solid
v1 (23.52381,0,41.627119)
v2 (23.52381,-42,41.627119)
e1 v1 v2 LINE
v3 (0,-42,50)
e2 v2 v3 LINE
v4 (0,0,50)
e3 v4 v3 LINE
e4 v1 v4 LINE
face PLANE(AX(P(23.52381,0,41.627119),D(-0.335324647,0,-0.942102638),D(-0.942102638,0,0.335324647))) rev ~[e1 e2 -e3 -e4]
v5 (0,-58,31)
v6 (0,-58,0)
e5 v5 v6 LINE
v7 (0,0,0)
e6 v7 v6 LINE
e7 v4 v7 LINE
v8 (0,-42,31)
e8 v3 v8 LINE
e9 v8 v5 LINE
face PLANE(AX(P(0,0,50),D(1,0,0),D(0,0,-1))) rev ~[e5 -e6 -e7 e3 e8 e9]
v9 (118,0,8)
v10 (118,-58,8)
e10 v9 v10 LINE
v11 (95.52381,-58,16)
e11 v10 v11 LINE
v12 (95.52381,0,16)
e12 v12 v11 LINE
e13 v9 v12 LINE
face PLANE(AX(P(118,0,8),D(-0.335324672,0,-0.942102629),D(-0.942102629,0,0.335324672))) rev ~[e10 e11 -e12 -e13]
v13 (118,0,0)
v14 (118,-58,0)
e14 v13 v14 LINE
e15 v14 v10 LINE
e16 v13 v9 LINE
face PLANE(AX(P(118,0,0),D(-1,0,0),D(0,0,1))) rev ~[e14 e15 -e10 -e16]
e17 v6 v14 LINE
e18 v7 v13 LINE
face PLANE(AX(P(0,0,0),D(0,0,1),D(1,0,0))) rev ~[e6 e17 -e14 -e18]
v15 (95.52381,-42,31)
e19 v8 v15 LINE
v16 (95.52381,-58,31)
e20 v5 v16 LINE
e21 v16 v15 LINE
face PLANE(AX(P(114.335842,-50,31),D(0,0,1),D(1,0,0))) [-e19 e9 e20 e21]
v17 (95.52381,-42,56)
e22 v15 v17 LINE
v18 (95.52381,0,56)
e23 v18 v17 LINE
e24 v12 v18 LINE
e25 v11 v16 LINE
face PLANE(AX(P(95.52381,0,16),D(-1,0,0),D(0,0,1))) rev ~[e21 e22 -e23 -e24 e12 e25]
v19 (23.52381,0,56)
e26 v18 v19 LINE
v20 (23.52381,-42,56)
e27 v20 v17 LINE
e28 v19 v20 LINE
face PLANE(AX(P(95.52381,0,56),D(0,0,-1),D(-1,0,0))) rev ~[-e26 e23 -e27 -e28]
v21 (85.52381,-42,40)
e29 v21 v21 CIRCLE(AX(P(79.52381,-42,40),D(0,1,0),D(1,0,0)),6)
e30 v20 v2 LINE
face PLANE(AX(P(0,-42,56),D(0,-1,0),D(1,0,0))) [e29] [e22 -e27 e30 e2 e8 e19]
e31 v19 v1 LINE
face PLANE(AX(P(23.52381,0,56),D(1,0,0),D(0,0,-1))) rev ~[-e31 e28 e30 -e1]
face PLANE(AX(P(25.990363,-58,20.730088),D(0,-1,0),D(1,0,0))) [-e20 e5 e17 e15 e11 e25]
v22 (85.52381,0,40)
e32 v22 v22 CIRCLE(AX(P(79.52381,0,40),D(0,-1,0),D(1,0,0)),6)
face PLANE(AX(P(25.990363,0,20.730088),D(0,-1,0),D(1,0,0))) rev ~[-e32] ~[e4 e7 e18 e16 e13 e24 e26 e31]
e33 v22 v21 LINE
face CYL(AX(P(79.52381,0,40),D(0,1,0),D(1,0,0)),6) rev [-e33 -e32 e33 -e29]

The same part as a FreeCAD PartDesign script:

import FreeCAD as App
import Part
import Sketcher

V = App.Vector


def add_polygon(sketch, points):
    """Adds a closed chain of lines whose ends are joined by coincident constraints."""
    first, n = sketch.GeometryCount, len(points)
    for a, b in zip(points, points[1:] + points[:1]):
        sketch.addGeometry(Part.LineSegment(App.Vector(*a, 0), App.Vector(*b, 0)), False)
    for i in range(n):
        sketch.addConstraint(Sketcher.Constraint("Coincident", first + i, 2, first + (i + 1) % n, 1))

doc = App.newDocument("Part")
params = doc.addObject("Spreadsheet::Sheet", "Params")
for row, (alias, value) in enumerate([
    ("sketch1_diameter", "12 mm"),
    ("sketch1_width", "118 mm"),
    ("sketch1_width2", "72 mm"),
    ("sketch1_height", "50 mm"),
    ("sketch1_height2", "8 mm"),
    ("pad1_length", "58 mm"),
    ("sketch2_height", "16 mm"),
    ("pocket1_length", "25 mm"),
], start=1):
    params.set(f"A{row}", alias)
    params.set(f"B{row}", "=" + value)
    params.setAlias(f"B{row}", alias)

body = doc.addObject("PartDesign::Body", "Body")

sketch1 = doc.addObject("Sketcher::SketchObject", "Sketch")
body.addObject(sketch1)
sketch1.AttachmentSupport = (doc.XZ_Plane, [""])
sketch1.MapMode = "FlatFace"
add_polygon(sketch1, [(0, 50), (0, 0), (118, 0), (118, 8), (95.52381, 16), (95.52381, 56), (23.52381, 56), (23.52381, 41.627119)])
sketch1.addGeometry(Part.Circle(V(79.52381, 40, 0), V(0, 0, 1), 6), False)
sketch1.addConstraint(Sketcher.Constraint("Vertical", 0))
sketch1.addConstraint(Sketcher.Constraint("Horizontal", 1))
sketch1.addConstraint(Sketcher.Constraint("Vertical", 2))
sketch1.addConstraint(Sketcher.Constraint("Vertical", 4))
sketch1.addConstraint(Sketcher.Constraint("Horizontal", 5))
sketch1.addConstraint(Sketcher.Constraint("Vertical", 6))
sketch1.addConstraint(Sketcher.Constraint("Coincident", 0, 2, -1, 1))
sketch1.addConstraint(Sketcher.Constraint("Parallel", 3, 7))
sketch1.addConstraint(Sketcher.Constraint("Diameter", 8, 12.0))
sketch1.addConstraint(Sketcher.Constraint("DistanceX", 1, 1, 1, 2, 118.0))
sketch1.addConstraint(Sketcher.Constraint("DistanceX", 5, 2, 5, 1, 72.0))
sketch1.addConstraint(Sketcher.Constraint("DistanceY", 0, 2, 0, 1, 50.0))
sketch1.addConstraint(Sketcher.Constraint("DistanceY", 2, 1, 2, 2, 8.0))
sketch1.addConstraint(Sketcher.Constraint("DistanceY", 4, 1, 4, 2, 40.0))
sketch1.addConstraint(Sketcher.Constraint("DistanceY", -1, 1, 8, 3, 40.0))
sketch1.addConstraint(Sketcher.Constraint("DistanceY", -1, 1, 3, 2, 16.0))
sketch1.addConstraint(Sketcher.Constraint("DistanceX", 8, 3, 3, 2, 16.0))
sketch1.addConstraint(Sketcher.Constraint("DistanceY", 6, 2, 6, 1, 14.372881))
sketch1.setExpression("Constraints[16]", "Params.sketch1_diameter")
sketch1.setExpression("Constraints[17]", "Params.sketch1_width")
sketch1.setExpression("Constraints[18]", "Params.sketch1_width2")
sketch1.setExpression("Constraints[19]", "Params.sketch1_height")
sketch1.setExpression("Constraints[20]", "Params.sketch1_height2")
pad1 = doc.addObject("PartDesign::Pad", "Pad")
body.addObject(pad1)
pad1.Profile = sketch1
pad1.setExpression("Length", "Params.pad1_length")

sketch2 = doc.addObject("Sketcher::SketchObject", "Sketch001")
body.addObject(sketch2)
sketch2.AttachmentSupport = (doc.XY_Plane, [""])
sketch2.MapMode = "FlatFace"
sketch2.AttachmentOffset = App.Placement(V(0, 0, 56), App.Rotation())
add_polygon(sketch2, [(0, -42), (0, -58), (228.671684, -58), (228.671684, -42)])
sketch2.addConstraint(Sketcher.Constraint("Vertical", 0))
sketch2.addConstraint(Sketcher.Constraint("Horizontal", 1))
sketch2.addConstraint(Sketcher.Constraint("Vertical", 2))
sketch2.addConstraint(Sketcher.Constraint("Horizontal", 3))
sketch2.addConstraint(Sketcher.Constraint("PointOnObject", 0, 2, -2))
sketch2.addConstraint(Sketcher.Constraint("DistanceY", 0, 2, 0, 1, 16.0))
sketch2.addConstraint(Sketcher.Constraint("DistanceY", 0, 2, -1, 1, 58.0))
sketch2.addConstraint(Sketcher.Constraint("DistanceX", 1, 1, 1, 2, 228.671685))
sketch2.setExpression("Constraints[9]", "Params.sketch2_height")
pocket1 = doc.addObject("PartDesign::Pocket", "Pocket")
body.addObject(pocket1)
pocket1.Profile = sketch2
pocket1.setExpression("Length", "Params.pocket1_length")

doc.recompute()
